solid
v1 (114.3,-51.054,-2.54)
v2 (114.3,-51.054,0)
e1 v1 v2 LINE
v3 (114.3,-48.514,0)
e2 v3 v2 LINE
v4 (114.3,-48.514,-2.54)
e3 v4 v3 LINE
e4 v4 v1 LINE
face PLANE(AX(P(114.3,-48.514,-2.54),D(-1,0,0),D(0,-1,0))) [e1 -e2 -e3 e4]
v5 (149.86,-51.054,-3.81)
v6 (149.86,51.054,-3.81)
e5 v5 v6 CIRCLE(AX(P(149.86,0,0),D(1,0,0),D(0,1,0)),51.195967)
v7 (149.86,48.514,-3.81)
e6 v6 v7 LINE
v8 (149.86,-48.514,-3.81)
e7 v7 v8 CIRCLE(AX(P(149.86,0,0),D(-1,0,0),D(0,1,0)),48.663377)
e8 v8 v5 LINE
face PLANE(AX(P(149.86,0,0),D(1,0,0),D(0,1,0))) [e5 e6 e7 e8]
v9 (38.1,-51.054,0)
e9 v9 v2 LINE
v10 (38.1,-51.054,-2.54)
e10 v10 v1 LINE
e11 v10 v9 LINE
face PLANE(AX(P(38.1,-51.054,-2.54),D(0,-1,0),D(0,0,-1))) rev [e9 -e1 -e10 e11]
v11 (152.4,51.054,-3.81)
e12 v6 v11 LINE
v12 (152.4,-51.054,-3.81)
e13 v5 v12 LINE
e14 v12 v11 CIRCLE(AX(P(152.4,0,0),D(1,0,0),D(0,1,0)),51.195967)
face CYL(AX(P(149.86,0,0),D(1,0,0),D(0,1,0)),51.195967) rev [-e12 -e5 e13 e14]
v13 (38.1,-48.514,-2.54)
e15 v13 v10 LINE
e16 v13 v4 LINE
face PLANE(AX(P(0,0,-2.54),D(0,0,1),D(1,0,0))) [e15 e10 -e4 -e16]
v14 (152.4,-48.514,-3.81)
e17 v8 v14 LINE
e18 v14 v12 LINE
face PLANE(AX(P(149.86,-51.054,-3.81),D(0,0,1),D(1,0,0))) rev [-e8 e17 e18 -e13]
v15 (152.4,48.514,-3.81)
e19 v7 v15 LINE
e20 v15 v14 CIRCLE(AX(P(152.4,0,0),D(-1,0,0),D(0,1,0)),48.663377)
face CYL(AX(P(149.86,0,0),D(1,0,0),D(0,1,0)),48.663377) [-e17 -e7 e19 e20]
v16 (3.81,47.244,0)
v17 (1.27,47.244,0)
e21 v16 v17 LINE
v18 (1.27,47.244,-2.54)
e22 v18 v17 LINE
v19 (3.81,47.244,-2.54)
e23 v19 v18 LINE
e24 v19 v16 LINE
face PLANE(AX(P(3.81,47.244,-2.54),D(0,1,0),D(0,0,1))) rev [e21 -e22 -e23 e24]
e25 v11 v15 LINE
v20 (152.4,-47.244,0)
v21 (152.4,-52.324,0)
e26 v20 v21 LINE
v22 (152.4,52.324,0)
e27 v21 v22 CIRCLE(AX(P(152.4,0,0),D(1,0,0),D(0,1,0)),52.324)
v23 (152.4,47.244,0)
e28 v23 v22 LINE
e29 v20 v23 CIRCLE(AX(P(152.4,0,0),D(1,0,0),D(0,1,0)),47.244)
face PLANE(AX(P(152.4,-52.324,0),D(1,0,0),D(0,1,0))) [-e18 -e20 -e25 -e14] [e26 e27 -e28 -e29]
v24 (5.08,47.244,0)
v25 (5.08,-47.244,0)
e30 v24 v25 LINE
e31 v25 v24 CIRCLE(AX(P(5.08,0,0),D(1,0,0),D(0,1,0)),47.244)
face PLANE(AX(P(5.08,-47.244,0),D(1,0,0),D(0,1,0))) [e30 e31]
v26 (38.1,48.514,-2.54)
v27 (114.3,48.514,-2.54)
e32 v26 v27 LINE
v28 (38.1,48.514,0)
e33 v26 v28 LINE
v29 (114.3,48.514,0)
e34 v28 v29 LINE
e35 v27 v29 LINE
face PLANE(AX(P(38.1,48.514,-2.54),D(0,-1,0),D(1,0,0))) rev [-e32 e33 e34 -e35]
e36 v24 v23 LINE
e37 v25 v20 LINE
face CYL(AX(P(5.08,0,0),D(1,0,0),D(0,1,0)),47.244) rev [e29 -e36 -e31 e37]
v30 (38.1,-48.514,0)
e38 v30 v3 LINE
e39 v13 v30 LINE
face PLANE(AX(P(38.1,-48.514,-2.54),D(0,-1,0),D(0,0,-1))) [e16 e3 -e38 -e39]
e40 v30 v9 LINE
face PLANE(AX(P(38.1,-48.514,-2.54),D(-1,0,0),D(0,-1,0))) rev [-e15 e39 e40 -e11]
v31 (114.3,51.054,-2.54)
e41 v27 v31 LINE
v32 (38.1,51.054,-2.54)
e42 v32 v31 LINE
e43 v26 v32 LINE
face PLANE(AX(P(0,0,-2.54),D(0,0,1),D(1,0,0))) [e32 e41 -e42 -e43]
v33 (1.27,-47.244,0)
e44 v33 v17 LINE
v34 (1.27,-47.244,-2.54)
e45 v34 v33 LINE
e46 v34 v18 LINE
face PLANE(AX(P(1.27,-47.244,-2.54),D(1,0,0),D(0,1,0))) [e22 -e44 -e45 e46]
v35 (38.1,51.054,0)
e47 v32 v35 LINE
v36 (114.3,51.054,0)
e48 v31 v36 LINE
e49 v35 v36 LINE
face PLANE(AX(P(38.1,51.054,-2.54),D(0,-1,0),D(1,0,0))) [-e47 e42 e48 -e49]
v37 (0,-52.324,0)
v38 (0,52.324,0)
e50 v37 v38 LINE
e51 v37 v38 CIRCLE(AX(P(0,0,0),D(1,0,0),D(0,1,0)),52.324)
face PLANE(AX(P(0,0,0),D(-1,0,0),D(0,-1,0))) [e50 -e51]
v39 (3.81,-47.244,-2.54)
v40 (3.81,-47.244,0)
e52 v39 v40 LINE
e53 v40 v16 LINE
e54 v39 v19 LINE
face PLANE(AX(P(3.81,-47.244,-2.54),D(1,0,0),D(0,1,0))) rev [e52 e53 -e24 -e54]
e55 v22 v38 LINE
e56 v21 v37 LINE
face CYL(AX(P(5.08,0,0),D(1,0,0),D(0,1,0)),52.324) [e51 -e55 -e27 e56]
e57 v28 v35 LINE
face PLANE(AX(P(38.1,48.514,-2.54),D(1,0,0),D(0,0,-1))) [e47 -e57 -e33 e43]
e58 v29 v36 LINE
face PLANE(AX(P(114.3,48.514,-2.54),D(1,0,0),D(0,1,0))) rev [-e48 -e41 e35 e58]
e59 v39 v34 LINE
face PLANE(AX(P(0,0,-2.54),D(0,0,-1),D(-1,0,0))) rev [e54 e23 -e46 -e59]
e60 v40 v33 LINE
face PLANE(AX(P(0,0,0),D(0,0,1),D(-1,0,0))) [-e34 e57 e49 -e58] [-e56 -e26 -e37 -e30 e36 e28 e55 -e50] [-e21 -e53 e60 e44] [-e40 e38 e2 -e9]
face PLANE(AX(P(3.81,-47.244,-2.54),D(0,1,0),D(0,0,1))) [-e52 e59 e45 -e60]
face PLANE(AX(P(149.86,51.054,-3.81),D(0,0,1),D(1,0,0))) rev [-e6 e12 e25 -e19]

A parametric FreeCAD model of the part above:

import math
import FreeCAD as App
import Part
import Sketcher
Q = App.Units.Quantity


def add_polygon(sketch, points):
    """Adds a closed chain of lines whose ends are joined by coincident constraints."""
    first, n = sketch.GeometryCount, len(points)
    for a, b in zip(points, points[1:] + points[:1]):
        sketch.addGeometry(Part.LineSegment(App.Vector(*a, 0), App.Vector(*b, 0)), False)
    for i in range(n):
        sketch.addConstraint(Sketcher.Constraint("Coincident", first + i, 2, first + (i + 1) % n, 1))

doc = App.newDocument("Part")
body = doc.addObject("PartDesign::Body", "Body")

sketch1 = body.newObject("Sketcher::SketchObject", "Sketch")
sketch1.AttachmentSupport = (doc.getObject("XY_Plane"), [""])
sketch1.MapMode = "FlatFace"
add_polygon(sketch1, [(0, 52.324), (0, 0), (5.08, 0), (5.08, 47.244), (152.4, 47.244), (152.4, 52.324)])
sketch1.addConstraint(Sketcher.Constraint("Vertical", 0))
sketch1.addConstraint(Sketcher.Constraint("Horizontal", 1))
sketch1.addConstraint(Sketcher.Constraint("Vertical", 2))
sketch1.addConstraint(Sketcher.Constraint("Horizontal", 3))
sketch1.addConstraint(Sketcher.Constraint("Vertical", 4))
sketch1.addConstraint(Sketcher.Constraint("Horizontal", 5))
sketch1.addConstraint(Sketcher.Constraint("Coincident", 0, 2, -1, 1))
sketch1.addConstraint(Sketcher.Constraint("Equal", 1, 4))
sketch1.addConstraint(Sketcher.Constraint("DistanceX", 5, 2, 5, 1, Q("6 in")))
sketch1.addConstraint(Sketcher.Constraint("DistanceX", 1, 1, 1, 2, Q("0.2 in")))
sketch1.addConstraint(Sketcher.Constraint("DistanceY", 0, 2, 0, 1, Q("2.06 in")))
revolution = body.newObject("PartDesign::Revolution", "Revolution")
revolution.Profile = sketch1
revolution.ReferenceAxis = (sketch1, ["H_Axis"])
revolution.Angle = 180
revolution.Reversed = True

sketch2 = body.newObject("Sketcher::SketchObject", "Sketch001")
sketch2.AttachmentSupport = (doc.getObject("XY_Plane"), [""])
sketch2.MapMode = "FlatFace"
add_polygon(sketch2, [(1.27, 47.244), (1.27, -47.244), (3.81, -47.244), (3.81, 47.244)])
add_polygon(sketch2, [(38.1, 51.054), (38.1, 48.514), (114.3, 48.514), (114.3, 51.054)])
add_polygon(sketch2, [(38.1, -48.514), (38.1, -51.054), (114.3, -51.054), (114.3, -48.514)])
sketch2.addConstraint(Sketcher.Constraint("Vertical", 0))
sketch2.addConstraint(Sketcher.Constraint("Horizontal", 1))
sketch2.addConstraint(Sketcher.Constraint("Vertical", 2))
sketch2.addConstraint(Sketcher.Constraint("Horizontal", 3))
sketch2.addConstraint(Sketcher.Constraint("Vertical", 4))
sketch2.addConstraint(Sketcher.Constraint("Horizontal", 5))
sketch2.addConstraint(Sketcher.Constraint("Vertical", 6))
sketch2.addConstraint(Sketcher.Constraint("Horizontal", 7))
sketch2.addConstraint(Sketcher.Constraint("Vertical", 8))
sketch2.addConstraint(Sketcher.Constraint("Horizontal", 9))
sketch2.addConstraint(Sketcher.Constraint("Vertical", 10))
sketch2.addConstraint(Sketcher.Constraint("Horizontal", 11))
sketch2.addConstraint(Sketcher.Constraint("Symmetric", 7, 2, 8, 2, -1))
sketch2.addConstraint(Sketcher.Constraint("Symmetric", 5, 2, 10, 2, -1))
sketch2.addConstraint(Sketcher.Constraint("Equal", 3, 4))
sketch2.addConstraint(Sketcher.Constraint("DistanceX", 5, 1, 5, 2, Q("3 in")))
sketch2.addConstraint(Sketcher.Constraint("DistanceX", 1, 1, 1, 2, Q("0.1 in")))
sketch2.addConstraint(Sketcher.Constraint("DistanceY", 0, 2, 0, 1, Q("3.72 in")))
sketch2.addConstraint(Sketcher.Constraint("DistanceX", -1, 1, 4, 2, Q("1.5 in")))
sketch2.addConstraint(Sketcher.Constraint("DistanceX", -1, 1, 0, 2, Q("0.05 in")))
sketch2.addConstraint(Sketcher.Constraint("DistanceY", 0, 2, -1, 1, Q("1.86 in")))
sketch2.addConstraint(Sketcher.Constraint("DistanceY", -1, 1, 4, 2, Q("1.91 in")))
pocket1 = body.newObject("PartDesign::Pocket", "Pocket")
pocket1.Profile = sketch2
pocket1.Length = Q("0.1 in")

sketch3 = body.newObject("Sketcher::SketchObject", "Sketch002")
sketch3.AttachmentSupport = (doc.getObject("YZ_Plane"), [""])
sketch3.MapMode = "FlatFace"
sketch3.AttachmentOffset = App.Placement(App.Vector(0, 0, 6 * 25.4), App.Rotation())
sketch3.addGeometry(Part.LineSegment(App.Vector(51.054, -3.81, 0), App.Vector(48.514, -3.81, 0)), False)
sketch3.addGeometry(Part.ArcOfCircle(Part.Circle(App.Vector(0, 0, 0), App.Vector(0, 0, 1), 48.663377), math.radians(-175.509548), math.radians(-4.490452)), False)
sketch3.addGeometry(Part.LineSegment(App.Vector(-48.514, -3.81, 0), App.Vector(-51.054, -3.81, 0)), False)
sketch3.addGeometry(Part.ArcOfCircle(Part.Circle(App.Vector(0, 0, 0), App.Vector(0, 0, 1), 51.195967), math.radians(-175.732107), math.radians(-4.267893)), False)
sketch3.addConstraint(Sketcher.Constraint("Coincident", 0, 2, 1, 2))
sketch3.addConstraint(Sketcher.Constraint("Coincident", 1, 1, 2, 1))
sketch3.addConstraint(Sketcher.Constraint("Coincident", 2, 2, 3, 1))
sketch3.addConstraint(Sketcher.Constraint("Coincident", 3, 2, 0, 1))
sketch3.addConstraint(Sketcher.Constraint("Horizontal", 0))
sketch3.addConstraint(Sketcher.Constraint("Horizontal", 2))
sketch3.addConstraint(Sketcher.Constraint("Coincident", 1, 3, -1, 1))
sketch3.addConstraint(Sketcher.Constraint("Coincident", 3, 3, -1, 1))
sketch3.addConstraint(Sketcher.Constraint("Horizontal", 0, 2, 1, 1))
sketch3.addConstraint(Sketcher.Constraint("DistanceX", 0, 2, 0, 1, Q("0.1 in")))
sketch3.addConstraint(Sketcher.Constraint("DistanceX", -1, 1, 0, 2, Q("1.91 in")))
sketch3.addConstraint(Sketcher.Constraint("DistanceY", 0, 2, -1, 1, Q("0.15 in")))
pocket2 = body.newObject("PartDesign::Pocket", "Pocket001")
pocket2.Profile = sketch3
pocket2.Length = Q("0.1 in")

doc.recompute()
